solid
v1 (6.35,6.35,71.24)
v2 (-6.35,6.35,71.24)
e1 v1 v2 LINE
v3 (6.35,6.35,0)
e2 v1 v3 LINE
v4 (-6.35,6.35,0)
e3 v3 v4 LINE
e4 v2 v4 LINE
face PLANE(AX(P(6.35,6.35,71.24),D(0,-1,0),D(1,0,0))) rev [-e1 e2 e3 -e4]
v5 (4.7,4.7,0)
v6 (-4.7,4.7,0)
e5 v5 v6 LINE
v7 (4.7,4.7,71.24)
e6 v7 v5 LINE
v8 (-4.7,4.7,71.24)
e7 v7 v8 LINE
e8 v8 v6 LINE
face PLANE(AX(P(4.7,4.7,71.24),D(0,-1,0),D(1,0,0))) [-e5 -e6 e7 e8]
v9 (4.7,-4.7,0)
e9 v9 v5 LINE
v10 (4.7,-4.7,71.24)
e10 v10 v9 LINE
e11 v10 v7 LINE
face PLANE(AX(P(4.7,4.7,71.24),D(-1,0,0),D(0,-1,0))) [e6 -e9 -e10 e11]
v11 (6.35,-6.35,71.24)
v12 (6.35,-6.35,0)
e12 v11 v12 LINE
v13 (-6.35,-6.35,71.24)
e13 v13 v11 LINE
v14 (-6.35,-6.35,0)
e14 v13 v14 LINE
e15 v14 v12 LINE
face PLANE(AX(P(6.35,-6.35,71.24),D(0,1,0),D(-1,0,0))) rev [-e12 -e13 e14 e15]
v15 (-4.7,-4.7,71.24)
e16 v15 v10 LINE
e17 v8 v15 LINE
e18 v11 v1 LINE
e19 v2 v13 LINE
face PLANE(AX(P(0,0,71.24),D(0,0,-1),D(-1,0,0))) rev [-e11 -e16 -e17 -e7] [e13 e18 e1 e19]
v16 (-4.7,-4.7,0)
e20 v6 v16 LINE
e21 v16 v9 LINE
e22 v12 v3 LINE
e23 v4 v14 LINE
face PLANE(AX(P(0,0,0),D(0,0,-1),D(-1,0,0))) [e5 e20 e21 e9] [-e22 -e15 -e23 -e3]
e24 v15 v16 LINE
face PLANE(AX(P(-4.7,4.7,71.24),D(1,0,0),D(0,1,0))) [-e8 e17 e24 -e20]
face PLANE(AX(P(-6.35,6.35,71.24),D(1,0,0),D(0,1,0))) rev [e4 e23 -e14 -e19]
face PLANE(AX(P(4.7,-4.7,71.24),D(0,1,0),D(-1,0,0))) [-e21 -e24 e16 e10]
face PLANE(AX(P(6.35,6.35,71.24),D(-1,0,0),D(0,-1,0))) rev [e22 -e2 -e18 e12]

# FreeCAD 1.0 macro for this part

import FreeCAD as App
import Part
import Sketcher
Q = App.Units.Quantity

doc = App.newDocument("Part")
body = doc.addObject("PartDesign::Body", "Body")

# Sketch on XY plane
sketch1 = body.newObject("Sketcher::SketchObject", "Sketch")
sketch1.AttachmentSupport = (doc.getObject("XY_Plane"), [""])
sketch1.MapMode = "FlatFace"
sketch1.addGeometry([
    Part.LineSegment(App.Vector(-6, 6, 0), App.Vector(-6, -6, 0)),  # 0
    Part.LineSegment(App.Vector(-6, -6, 0), App.Vector(6, -6, 0)),  # 1
    Part.LineSegment(App.Vector(6, -6, 0), App.Vector(6, 6, 0)),  # 2
    Part.LineSegment(App.Vector(6, 6, 0), App.Vector(-6, 6, 0)),  # 3
    Part.LineSegment(App.Vector(5, -5, 0), App.Vector(-5, -5, 0)),  # 4
    Part.LineSegment(App.Vector(-5, -5, 0), App.Vector(-5, 5, 0)),  # 5
    Part.LineSegment(App.Vector(-5, 5, 0), App.Vector(5, 5, 0)),  # 6
    Part.LineSegment(App.Vector(5, 5, 0), App.Vector(5, -5, 0)),  # 7
], False)
sketch1.addConstraint([
    Sketcher.Constraint("Coincident", 0, 2, 1, 1),
    Sketcher.Constraint("Coincident", 1, 2, 2, 1),
    Sketcher.Constraint("Coincident", 2, 2, 3, 1),
    Sketcher.Constraint("Coincident", 3, 2, 0, 1),
    Sketcher.Constraint("Coincident", 4, 2, 5, 1),
    Sketcher.Constraint("Coincident", 5, 2, 6, 1),
    Sketcher.Constraint("Coincident", 6, 2, 7, 1),
    Sketcher.Constraint("Coincident", 7, 2, 4, 1),
    Sketcher.Constraint("Vertical", 0),
    Sketcher.Constraint("Horizontal", 1),
    Sketcher.Constraint("Vertical", 2),
    Sketcher.Constraint("Horizontal", 3),
    Sketcher.Constraint("Horizontal", 4),
    Sketcher.Constraint("Vertical", 5),
    Sketcher.Constraint("Horizontal", 6),
    Sketcher.Constraint("Vertical", 7),
    Sketcher.Constraint("Symmetric", 0, 2, 2, 2, -1, 1),
    Sketcher.Constraint("Symmetric", 4, 2, 6, 2, -1, 1),
    Sketcher.Constraint("Equal", 3, 0),
    Sketcher.Constraint("Equal", 6, 5),
    Sketcher.Constraint("DistanceX", 1, 1, 1, 2, Q("12.7 mm")),
    Sketcher.Constraint("DistanceX", 4, 2, 4, 1, Q("9.4 mm")),
])
pad1 = body.newObject("PartDesign::Pad", "Pad")
pad1.Profile = sketch1
pad1.Length = 71.24

doc.recompute()
